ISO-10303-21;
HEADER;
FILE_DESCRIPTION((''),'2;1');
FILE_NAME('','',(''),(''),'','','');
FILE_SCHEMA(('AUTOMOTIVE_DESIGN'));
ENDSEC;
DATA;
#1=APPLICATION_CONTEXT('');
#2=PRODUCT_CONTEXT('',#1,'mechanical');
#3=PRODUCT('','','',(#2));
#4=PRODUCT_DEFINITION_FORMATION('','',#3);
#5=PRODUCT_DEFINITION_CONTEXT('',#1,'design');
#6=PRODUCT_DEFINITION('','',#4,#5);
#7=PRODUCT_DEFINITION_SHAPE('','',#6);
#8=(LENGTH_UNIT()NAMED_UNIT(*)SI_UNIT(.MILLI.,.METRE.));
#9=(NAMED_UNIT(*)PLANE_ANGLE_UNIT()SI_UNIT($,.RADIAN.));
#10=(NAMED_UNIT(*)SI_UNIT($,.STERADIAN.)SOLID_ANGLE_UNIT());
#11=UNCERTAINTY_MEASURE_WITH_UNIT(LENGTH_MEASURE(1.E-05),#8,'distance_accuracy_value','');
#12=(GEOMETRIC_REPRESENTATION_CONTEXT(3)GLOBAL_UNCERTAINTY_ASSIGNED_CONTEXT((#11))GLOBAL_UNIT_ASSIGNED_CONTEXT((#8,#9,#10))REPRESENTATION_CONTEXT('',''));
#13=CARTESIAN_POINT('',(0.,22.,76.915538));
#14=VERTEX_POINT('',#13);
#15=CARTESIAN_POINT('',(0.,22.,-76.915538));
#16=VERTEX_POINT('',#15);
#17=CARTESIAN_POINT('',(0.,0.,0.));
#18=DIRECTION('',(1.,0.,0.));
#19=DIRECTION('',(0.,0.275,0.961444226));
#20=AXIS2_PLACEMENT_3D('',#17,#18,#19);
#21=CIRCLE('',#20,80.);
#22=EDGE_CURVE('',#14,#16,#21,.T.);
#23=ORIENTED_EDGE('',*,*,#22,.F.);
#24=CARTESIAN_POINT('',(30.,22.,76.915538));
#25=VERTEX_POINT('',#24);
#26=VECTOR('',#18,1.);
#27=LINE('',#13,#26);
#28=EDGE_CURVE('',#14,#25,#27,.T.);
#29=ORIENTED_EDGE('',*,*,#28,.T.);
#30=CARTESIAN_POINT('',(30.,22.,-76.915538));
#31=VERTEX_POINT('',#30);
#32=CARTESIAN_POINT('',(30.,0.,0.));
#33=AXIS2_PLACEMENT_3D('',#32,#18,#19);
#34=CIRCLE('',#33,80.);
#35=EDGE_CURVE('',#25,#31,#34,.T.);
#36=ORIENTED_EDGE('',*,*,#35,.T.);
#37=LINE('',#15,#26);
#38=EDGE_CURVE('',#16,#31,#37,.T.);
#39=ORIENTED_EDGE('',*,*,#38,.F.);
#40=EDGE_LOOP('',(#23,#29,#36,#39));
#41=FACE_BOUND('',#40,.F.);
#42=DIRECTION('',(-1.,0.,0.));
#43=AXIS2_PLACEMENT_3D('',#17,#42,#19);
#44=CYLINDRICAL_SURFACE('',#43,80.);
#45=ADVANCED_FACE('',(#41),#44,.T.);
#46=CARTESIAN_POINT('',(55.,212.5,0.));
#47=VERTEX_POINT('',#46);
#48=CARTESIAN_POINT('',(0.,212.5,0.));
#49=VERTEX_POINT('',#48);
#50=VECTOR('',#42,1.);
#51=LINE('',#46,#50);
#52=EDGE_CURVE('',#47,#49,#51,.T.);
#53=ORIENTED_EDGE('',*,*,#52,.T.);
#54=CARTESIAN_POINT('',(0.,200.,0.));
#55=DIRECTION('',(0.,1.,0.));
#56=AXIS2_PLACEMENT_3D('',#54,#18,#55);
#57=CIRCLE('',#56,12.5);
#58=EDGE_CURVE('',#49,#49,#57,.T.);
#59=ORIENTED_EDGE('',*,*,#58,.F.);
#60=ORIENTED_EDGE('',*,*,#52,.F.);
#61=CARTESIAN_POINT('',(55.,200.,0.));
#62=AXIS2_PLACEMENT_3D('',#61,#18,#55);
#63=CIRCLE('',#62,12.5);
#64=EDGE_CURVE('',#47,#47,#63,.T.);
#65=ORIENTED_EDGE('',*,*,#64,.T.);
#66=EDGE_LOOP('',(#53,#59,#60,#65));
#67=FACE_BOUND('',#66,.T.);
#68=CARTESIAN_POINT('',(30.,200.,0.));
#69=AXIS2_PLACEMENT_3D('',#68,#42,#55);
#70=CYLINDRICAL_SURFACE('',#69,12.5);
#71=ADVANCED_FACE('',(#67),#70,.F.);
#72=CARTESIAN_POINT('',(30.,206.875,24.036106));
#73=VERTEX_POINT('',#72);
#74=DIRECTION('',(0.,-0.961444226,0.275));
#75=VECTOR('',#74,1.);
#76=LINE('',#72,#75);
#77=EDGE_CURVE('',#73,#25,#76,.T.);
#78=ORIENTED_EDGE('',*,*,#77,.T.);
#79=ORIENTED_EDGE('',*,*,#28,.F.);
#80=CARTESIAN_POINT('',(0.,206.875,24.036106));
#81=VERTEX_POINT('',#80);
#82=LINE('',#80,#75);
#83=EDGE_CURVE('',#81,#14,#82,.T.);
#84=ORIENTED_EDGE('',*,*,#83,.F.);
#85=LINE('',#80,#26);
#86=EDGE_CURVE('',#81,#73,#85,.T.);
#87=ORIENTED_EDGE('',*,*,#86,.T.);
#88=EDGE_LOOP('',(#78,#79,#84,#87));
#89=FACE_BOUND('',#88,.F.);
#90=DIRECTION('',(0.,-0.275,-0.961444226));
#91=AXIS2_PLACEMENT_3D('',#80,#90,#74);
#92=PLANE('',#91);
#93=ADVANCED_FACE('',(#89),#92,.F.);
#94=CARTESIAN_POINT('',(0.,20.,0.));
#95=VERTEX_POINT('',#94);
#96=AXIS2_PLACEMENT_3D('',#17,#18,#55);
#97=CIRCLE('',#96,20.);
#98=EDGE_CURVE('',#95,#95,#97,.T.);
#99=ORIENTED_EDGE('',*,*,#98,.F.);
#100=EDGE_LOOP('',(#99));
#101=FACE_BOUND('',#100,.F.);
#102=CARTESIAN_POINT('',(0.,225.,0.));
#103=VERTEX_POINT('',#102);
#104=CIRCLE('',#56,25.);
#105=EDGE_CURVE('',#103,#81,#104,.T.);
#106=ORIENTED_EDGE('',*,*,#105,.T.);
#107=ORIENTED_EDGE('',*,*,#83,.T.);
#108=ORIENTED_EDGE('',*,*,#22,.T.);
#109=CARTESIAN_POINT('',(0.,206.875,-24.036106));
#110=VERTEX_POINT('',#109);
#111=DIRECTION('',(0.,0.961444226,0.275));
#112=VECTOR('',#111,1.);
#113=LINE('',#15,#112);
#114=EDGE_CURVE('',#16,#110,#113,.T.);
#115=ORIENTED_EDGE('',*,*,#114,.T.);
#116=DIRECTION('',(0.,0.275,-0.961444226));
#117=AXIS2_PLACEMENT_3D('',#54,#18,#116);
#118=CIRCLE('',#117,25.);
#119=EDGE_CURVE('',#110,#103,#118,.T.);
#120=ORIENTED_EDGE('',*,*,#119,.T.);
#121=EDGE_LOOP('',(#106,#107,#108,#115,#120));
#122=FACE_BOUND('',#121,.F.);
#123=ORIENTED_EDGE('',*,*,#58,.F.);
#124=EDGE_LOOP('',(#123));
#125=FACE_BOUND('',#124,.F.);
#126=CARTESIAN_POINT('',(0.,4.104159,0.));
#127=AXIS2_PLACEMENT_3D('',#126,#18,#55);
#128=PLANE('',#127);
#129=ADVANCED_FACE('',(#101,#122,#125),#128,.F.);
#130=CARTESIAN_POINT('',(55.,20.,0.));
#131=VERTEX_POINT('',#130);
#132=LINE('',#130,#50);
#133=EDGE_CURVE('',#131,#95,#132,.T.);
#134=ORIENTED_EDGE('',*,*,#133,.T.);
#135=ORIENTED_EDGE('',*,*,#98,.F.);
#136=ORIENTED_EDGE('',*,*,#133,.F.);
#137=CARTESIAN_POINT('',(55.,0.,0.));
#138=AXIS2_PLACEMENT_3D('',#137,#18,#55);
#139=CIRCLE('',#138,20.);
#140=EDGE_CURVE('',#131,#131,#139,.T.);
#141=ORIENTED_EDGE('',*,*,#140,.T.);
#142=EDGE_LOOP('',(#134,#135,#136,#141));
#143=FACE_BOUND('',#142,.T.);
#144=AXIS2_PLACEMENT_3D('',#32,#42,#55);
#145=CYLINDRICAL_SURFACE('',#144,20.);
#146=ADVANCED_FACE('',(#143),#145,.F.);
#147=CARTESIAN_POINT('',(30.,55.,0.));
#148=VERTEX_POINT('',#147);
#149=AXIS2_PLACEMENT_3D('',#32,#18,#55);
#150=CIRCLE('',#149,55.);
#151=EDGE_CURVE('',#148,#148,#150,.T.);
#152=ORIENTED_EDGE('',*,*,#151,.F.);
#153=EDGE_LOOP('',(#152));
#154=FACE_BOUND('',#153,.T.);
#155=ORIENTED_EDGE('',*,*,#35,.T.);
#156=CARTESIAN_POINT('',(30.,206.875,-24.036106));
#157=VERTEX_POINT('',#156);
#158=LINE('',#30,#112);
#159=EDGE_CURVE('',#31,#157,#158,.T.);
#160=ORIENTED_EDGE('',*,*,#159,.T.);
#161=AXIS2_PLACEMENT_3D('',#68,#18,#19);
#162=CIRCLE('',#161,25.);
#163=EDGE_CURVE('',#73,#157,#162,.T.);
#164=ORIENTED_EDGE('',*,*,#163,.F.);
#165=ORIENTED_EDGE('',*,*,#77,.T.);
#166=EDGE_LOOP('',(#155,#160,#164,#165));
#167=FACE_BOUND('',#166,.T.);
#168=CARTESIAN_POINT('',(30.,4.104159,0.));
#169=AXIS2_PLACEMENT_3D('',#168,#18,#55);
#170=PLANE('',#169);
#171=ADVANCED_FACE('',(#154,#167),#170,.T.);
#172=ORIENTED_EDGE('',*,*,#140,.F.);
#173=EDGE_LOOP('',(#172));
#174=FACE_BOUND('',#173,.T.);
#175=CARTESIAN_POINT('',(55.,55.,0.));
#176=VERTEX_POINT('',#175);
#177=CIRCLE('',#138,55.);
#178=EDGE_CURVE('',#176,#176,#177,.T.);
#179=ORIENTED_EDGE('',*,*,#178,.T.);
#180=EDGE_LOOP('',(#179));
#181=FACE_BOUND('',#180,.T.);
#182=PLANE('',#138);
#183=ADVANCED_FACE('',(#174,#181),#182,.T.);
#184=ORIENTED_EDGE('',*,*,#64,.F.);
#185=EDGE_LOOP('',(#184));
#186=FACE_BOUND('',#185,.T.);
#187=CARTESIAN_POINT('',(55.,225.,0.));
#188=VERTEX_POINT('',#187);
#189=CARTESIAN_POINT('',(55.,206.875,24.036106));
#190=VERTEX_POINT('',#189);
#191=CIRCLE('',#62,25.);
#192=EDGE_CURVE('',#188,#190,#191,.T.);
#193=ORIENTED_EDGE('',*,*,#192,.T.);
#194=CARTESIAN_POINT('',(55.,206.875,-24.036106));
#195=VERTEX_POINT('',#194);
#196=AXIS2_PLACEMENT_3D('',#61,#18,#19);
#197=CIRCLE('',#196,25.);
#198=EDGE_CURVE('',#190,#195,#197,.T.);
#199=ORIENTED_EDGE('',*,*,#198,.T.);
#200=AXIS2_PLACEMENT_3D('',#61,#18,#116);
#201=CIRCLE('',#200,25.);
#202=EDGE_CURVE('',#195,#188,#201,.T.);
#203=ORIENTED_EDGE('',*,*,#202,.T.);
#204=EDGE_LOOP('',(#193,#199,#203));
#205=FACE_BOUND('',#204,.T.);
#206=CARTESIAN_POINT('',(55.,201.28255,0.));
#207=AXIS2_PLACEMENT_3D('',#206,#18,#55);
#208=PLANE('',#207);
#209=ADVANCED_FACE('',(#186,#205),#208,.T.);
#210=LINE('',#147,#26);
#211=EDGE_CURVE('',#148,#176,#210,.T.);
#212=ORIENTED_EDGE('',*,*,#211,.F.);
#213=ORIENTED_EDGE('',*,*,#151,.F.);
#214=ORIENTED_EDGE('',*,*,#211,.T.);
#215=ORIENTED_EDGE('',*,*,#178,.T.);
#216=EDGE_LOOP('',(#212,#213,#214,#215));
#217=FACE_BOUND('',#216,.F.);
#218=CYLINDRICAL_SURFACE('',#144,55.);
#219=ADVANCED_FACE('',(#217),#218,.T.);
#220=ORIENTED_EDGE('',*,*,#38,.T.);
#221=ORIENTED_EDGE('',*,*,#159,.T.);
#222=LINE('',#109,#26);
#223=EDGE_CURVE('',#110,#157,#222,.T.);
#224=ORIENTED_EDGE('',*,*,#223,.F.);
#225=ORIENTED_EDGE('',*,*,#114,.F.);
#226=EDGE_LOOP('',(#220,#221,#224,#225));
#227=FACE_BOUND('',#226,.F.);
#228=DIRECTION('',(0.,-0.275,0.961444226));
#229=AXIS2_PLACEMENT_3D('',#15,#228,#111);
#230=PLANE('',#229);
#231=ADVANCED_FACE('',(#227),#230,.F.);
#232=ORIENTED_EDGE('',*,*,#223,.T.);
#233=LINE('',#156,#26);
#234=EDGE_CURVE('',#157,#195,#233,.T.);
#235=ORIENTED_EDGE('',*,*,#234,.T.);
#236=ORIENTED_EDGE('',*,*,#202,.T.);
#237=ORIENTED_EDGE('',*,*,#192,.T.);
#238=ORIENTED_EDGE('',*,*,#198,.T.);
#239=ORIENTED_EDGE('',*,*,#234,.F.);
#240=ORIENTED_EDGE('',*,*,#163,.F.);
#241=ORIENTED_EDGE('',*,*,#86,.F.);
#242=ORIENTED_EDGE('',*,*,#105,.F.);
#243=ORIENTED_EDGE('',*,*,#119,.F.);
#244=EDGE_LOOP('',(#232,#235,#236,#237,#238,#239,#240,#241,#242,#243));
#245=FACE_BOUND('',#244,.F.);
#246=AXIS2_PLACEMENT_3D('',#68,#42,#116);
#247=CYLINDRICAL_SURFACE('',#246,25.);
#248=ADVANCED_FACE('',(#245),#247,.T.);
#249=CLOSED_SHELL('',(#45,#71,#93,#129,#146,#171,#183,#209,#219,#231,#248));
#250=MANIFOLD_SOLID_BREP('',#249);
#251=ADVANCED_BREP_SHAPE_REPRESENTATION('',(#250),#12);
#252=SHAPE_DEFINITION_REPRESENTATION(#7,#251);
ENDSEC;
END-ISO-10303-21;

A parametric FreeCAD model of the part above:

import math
import FreeCAD as App
import Part
import Sketcher

V = App.Vector

doc = App.newDocument("Part")
body = doc.addObject("PartDesign::Body", "Body")

sketch1 = body.newObject("Sketcher::SketchObject", "Sketch")
sketch1.AttachmentSupport = (doc.getObject("YZ_Plane"), [""])
sketch1.MapMode = "FlatFace"
sketch1.addGeometry([
    Part.ArcOfCircle(Part.Circle(V(0, 0, 0), V(0, 0, 1), 80), math.radians(74), math.radians(286)),
    Part.LineSegment(V(22, -77, 0), V(207, -24, 0)),
    Part.ArcOfCircle(Part.Circle(V(200, 0, 0), V(0, 0, 1), 25), math.radians(-74), math.radians(0)),
    Part.ArcOfCircle(Part.Circle(V(200, 0, 0), V(0, 0, 1), 25), math.radians(0), math.radians(74)),
    Part.LineSegment(V(207, 24, 0), V(22, 77, 0)),
    Part.Circle(V(0, 0, 0), V(0, 0, 1), 20),
    Part.Circle(V(200, 0, 0), V(0, 0, 1), 12),
], False)
sketch1.addConstraint([
    Sketcher.Constraint("Tangent", 0, 2, 1, 1),
    Sketcher.Constraint("Tangent", 1, 2, 2, 1),
    Sketcher.Constraint("Tangent", 2, 2, 3, 1),
    Sketcher.Constraint("Tangent", 3, 2, 4, 1),
    Sketcher.Constraint("Tangent", 4, 2, 0, 1),
    Sketcher.Constraint("Coincident", 0, 3, -1, 1),
    Sketcher.Constraint("Coincident", 5, 3, -1, 1),
    Sketcher.Constraint("Coincident", 6, 3, 2, 3),
    Sketcher.Constraint("Equal", 2, 3),
    Sketcher.Constraint("PointOnObject", 2, 3, -1),
    Sketcher.Constraint("PointOnObject", 2, 2, -1),
    Sketcher.Constraint("Diameter", 5, 40.0),
    Sketcher.Constraint("Diameter", 6, 25.0),
    Sketcher.Constraint("Radius", 0, 80.0),
    Sketcher.Constraint("Radius", 2, 25.0),
    Sketcher.Constraint("DistanceX", -1, 1, 2, 3, 200.0),
])
pad1 = body.newObject("PartDesign::Pad", "Pad")
pad1.Profile = sketch1
pad1.Length = 30

sketch2 = body.newObject("Sketcher::SketchObject", "Sketch001")
sketch2.AttachmentSupport = (doc.getObject("YZ_Plane"), [""])
sketch2.MapMode = "FlatFace"
sketch2.AttachmentOffset = App.Placement(V(0, 0, 30), App.Rotation())
sketch2.addGeometry([
    Part.Circle(V(0, 0, 0), V(0, 0, 1), 55),
    Part.Circle(V(0, 0, 0), V(0, 0, 1), 20),
], False)
sketch2.addConstraint([
    Sketcher.Constraint("Coincident", 0, 3, -1, 1),
    Sketcher.Constraint("Coincident", 1, 3, -1, 1),
    Sketcher.Constraint("Diameter", 0, 110.0),
    Sketcher.Constraint("Diameter", 1, 40.0),
])
pad2 = body.newObject("PartDesign::Pad", "Pad001")
pad2.Profile = sketch2
pad2.Length = 25

sketch3 = body.newObject("Sketcher::SketchObject", "Sketch002")
sketch3.AttachmentSupport = (doc.getObject("YZ_Plane"), [""])
sketch3.MapMode = "FlatFace"
sketch3.AttachmentOffset = App.Placement(V(0, 0, 30), App.Rotation())
sketch3.addGeometry([
    Part.ArcOfCircle(Part.Circle(V(200, 0, 0), V(0, 0, 1), 25), math.radians(-74), math.radians(0)),
    Part.ArcOfCircle(Part.Circle(V(200, 0, 0), V(0, 0, 1), 25), math.radians(0), math.radians(74)),
    Part.ArcOfCircle(Part.Circle(V(200, 0, 0), V(0, 0, 1), 25), math.radians(74), math.radians(286)),
    Part.Circle(V(200, 0, 0), V(0, 0, 1), 12),
], False)
sketch3.addConstraint([
    Sketcher.Constraint("Tangent", 0, 2, 1, 1),
    Sketcher.Constraint("Tangent", 1, 2, 2, 1),
    Sketcher.Constraint("Tangent", 2, 2, 0, 1),
    Sketcher.Constraint("Coincident", 3, 3, 0, 3),
    Sketcher.Constraint("Symmetric", 1, 2, 2, 2, -1),
    Sketcher.Constraint("PointOnObject", 0, 2, -1),
    Sketcher.Constraint("Diameter", 3, 25.0),
    Sketcher.Constraint("Radius", 0, 25.0),
    Sketcher.Constraint("DistanceX", -1, 1, 0, 3, 200.0),
    Sketcher.Constraint("DistanceX", -1, 1, 1, 2, 206.875),
])
pad3 = body.newObject("PartDesign::Pad", "Pad002")
pad3.Profile = sketch3
pad3.Length = 25

doc.recompute()
